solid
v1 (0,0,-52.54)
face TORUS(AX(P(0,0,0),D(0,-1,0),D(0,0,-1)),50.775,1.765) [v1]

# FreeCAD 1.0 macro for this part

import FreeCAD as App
import Part
import Sketcher

V = App.Vector

doc = App.newDocument("Part")
body = doc.addObject("PartDesign::Body", "Body")

sketch1 = body.newObject("Sketcher::SketchObject", "Sketch")
sketch1.AttachmentSupport = (doc.getObject("XY_Plane"), [""])
sketch1.MapMode = "FlatFace"
sketch1.addGeometry(Part.Circle(V(-50.8, 0, 0), V(0, 0, 1), 1.8), False)
sketch1.addConstraint([
    Sketcher.Constraint("PointOnObject", 0, 3, -1),
    Sketcher.Constraint("Diameter", 0, 3.53),
    Sketcher.Constraint("DistanceX", 0, 3, -1, 1, 50.775),
])
revolution = body.newObject("PartDesign::Revolution", "Revolution")
revolution.Profile = sketch1
revolution.ReferenceAxis = (sketch1, ["V_Axis"])
revolution.Angle = 360

doc.recompute()
